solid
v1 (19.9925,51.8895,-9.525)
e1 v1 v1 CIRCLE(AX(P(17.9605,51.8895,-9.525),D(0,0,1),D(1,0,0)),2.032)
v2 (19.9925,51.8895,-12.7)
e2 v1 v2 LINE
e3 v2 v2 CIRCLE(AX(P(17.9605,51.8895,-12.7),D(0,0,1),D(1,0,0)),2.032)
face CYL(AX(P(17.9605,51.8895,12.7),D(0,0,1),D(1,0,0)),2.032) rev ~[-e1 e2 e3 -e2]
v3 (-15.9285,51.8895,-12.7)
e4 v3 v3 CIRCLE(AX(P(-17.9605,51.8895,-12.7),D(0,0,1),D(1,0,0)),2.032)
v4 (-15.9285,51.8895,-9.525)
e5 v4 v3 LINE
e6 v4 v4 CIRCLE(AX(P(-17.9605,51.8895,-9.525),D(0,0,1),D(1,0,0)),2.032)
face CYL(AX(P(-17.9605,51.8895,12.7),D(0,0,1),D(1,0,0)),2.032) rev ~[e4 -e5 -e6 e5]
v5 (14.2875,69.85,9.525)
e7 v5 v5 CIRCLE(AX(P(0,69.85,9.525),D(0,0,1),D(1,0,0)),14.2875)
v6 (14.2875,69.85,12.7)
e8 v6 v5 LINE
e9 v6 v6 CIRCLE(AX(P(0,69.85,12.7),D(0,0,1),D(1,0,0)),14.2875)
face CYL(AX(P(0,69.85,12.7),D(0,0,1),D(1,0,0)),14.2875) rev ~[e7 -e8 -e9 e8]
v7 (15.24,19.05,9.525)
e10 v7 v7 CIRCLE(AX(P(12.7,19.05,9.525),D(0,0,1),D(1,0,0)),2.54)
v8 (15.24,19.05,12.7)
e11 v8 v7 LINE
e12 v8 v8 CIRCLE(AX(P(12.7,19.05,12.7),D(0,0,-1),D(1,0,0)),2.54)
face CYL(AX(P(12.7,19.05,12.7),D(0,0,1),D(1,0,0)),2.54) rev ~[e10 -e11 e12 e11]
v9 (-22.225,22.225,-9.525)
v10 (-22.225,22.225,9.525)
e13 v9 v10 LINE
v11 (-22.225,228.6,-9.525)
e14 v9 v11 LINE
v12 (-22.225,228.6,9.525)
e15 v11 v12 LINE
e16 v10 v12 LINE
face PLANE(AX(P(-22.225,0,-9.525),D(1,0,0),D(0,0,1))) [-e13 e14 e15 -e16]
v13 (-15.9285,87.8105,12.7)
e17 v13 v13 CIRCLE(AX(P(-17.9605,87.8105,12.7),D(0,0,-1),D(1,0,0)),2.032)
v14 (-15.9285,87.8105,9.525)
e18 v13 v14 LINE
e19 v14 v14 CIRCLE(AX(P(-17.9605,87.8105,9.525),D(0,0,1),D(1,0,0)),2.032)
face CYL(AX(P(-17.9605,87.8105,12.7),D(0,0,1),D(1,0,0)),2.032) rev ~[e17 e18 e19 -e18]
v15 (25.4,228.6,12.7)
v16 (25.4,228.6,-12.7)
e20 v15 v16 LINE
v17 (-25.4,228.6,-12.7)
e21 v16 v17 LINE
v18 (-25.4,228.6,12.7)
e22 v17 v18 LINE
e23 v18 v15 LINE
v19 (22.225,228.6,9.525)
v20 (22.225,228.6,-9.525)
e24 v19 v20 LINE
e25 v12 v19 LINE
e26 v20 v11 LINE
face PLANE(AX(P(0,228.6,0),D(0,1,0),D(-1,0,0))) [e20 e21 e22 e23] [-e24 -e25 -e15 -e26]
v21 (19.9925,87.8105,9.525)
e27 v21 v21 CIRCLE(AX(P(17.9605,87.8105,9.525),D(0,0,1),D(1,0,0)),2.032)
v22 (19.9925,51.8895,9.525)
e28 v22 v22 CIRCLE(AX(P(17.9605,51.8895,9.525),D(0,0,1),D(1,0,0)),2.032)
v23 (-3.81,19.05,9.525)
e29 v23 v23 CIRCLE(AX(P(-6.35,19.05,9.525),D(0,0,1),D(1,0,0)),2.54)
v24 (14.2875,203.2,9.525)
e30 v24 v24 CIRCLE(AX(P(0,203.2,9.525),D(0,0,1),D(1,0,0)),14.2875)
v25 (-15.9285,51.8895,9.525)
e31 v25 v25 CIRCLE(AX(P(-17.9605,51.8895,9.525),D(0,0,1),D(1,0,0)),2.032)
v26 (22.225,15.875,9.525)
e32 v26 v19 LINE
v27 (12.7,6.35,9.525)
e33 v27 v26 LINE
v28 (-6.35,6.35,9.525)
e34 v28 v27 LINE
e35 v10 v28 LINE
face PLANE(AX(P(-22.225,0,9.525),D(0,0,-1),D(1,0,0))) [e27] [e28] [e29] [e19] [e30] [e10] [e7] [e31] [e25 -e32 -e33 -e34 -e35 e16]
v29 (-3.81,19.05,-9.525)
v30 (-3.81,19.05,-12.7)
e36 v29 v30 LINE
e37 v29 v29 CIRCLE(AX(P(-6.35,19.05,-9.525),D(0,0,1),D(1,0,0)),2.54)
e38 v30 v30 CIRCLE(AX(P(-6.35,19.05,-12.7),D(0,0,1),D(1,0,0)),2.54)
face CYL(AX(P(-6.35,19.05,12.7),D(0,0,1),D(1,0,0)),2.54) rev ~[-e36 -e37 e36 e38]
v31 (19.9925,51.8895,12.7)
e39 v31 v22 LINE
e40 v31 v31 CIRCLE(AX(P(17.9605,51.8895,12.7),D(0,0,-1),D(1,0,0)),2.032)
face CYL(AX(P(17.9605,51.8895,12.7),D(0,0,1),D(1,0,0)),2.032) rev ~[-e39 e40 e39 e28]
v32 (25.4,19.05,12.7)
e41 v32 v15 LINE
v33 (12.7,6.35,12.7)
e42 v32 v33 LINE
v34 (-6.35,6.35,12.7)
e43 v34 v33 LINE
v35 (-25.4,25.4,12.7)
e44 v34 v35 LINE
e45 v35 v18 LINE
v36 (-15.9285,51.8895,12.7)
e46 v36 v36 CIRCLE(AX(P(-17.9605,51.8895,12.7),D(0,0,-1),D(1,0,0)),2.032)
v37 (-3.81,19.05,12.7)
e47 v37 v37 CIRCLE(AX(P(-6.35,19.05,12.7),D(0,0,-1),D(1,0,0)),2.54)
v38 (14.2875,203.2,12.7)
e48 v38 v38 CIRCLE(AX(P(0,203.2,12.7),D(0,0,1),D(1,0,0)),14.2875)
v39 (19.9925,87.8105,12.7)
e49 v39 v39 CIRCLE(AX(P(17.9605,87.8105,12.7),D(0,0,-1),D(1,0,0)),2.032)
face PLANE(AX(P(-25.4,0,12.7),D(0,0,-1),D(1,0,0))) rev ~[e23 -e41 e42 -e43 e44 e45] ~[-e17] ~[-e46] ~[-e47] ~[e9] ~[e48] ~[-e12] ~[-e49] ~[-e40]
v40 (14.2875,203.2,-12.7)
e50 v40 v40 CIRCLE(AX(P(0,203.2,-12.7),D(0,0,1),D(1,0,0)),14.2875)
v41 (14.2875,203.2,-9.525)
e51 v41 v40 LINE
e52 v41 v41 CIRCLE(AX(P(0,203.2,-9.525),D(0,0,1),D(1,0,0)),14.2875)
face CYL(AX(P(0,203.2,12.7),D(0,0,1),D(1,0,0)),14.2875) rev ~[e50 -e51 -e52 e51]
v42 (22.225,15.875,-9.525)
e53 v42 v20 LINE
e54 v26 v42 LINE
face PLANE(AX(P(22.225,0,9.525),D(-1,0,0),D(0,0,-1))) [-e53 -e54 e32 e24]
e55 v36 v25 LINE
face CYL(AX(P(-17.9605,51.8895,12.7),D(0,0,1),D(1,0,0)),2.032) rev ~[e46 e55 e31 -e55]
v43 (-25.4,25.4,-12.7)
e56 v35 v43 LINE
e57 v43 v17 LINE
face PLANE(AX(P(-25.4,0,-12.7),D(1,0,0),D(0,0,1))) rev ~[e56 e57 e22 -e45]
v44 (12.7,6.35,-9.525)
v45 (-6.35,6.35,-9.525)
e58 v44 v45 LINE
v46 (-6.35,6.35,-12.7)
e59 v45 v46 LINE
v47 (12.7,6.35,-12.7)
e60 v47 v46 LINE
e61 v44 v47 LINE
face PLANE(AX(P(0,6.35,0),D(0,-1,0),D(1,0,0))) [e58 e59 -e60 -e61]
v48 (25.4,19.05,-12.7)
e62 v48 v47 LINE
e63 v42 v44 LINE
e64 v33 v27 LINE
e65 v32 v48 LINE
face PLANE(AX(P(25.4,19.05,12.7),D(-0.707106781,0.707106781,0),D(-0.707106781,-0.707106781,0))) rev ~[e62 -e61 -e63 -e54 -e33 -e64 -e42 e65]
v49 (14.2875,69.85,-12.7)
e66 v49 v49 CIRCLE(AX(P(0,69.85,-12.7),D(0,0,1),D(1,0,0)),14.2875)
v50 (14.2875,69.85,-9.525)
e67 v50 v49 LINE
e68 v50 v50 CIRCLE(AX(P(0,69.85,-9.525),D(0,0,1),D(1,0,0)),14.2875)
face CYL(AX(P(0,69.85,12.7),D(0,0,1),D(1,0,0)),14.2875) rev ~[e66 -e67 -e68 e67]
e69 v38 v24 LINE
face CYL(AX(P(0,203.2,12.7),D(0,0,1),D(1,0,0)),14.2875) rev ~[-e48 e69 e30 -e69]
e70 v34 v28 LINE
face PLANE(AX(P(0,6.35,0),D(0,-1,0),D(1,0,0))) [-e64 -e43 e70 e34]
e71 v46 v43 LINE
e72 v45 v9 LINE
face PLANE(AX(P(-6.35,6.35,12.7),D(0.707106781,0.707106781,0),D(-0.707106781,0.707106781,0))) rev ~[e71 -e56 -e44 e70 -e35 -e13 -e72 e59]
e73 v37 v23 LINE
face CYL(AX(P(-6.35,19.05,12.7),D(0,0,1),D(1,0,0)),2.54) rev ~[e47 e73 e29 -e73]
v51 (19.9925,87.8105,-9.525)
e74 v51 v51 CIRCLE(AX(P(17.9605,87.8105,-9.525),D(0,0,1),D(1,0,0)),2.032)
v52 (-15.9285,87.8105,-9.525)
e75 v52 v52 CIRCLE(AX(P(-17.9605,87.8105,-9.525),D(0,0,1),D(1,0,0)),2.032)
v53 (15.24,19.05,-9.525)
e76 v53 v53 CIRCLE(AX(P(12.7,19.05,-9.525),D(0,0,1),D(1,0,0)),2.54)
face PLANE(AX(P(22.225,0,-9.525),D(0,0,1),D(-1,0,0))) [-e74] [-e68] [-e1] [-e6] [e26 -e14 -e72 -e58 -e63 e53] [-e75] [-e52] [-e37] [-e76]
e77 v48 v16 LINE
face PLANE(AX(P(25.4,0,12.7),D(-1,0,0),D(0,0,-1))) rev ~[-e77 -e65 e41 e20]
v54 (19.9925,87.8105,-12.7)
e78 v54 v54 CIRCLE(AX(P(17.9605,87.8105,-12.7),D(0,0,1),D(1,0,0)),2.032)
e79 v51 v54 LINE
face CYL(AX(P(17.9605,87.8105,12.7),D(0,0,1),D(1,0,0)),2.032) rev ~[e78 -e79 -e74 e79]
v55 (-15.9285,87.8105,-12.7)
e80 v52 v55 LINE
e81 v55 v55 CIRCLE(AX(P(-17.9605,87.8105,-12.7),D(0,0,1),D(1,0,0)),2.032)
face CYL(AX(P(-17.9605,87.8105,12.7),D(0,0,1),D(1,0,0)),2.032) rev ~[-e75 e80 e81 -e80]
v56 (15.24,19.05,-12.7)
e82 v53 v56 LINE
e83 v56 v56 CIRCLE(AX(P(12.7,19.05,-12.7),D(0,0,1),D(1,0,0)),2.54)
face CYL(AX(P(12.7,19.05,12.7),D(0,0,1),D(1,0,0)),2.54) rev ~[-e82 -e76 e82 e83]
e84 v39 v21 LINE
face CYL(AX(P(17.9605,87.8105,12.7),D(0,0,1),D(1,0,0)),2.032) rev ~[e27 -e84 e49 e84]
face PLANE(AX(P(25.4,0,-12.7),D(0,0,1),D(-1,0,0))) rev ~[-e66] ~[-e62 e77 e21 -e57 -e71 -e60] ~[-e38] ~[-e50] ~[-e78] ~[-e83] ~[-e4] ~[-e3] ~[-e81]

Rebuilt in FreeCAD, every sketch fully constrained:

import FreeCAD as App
import Part
import Sketcher
from FreeCAD import Vector
Q = App.Units.Quantity

doc = App.newDocument("Part")
params = doc.addObject("Spreadsheet::Sheet", "Params")
for row, (alias, value) in enumerate([
    ("sketch1_width", "2 in"),
    ("sketch1_height", "1 in"),
    ("sketch1_width2", "1.75 in"),
    ("sketch1_height2", "0.75 in"),
    ("pad1_length", "9 in"),
    ("sketch2_diameter", "0.2 in"),
    ("sketch2_diameter2", "0.5 in"),
    ("pocket1_length", "9 in"),
    ("sketch3_width", "2 in"),
    ("sketch3_height", "1 in"),
    ("sketch3_width2", "1.75 in"),
    ("sketch3_height2", "0.75 in"),
    ("pocket2_length", "0.25 in"),
    ("sketch4_width", "0.5 in"),
    ("pocket3_length", "25 in"),
    ("sketch5_width", "0.25 in"),
    ("pocket4_length", "25 in"),
    ("sketch6_diameter", "0.75 in"),
    ("sketch6_diameter2", "0.16 in"),
    ("pocket5_length", "25 in"),
    ("sketch7_diameter", "1.125 in"),
    ("sketch7_diameter2", "0.5 in"),
    ("pocket6_length", "25 in"),
    ("sketch8_diameter", "1.125 in"),
    ("sketch8_diameter2", "0.75 in"),
    ("pocket7_length", "1 in"),
], start=1):
    params.set(f"A{row}", alias)
    params.set(f"B{row}", "=" + value)
    params.setAlias(f"B{row}", alias)

body = doc.addObject("PartDesign::Body", "Body")

# Sketch on XZ plane
sketch1 = body.newObject("Sketcher::SketchObject", "Sketch")
sketch1.AttachmentSupport = (doc.getObject("XZ_Plane"), [""])
sketch1.MapMode = "FlatFace"
sketch1.addGeometry(Part.LineSegment(Vector(-25, -13, 0), Vector(-25, 13, 0)), False)
sketch1.addGeometry(Part.LineSegment(Vector(-25, 13, 0), Vector(25, 13, 0)), False)
sketch1.addGeometry(Part.LineSegment(Vector(25, 13, 0), Vector(25, -13, 0)), False)
sketch1.addGeometry(Part.LineSegment(Vector(25, -13, 0), Vector(-25, -13, 0)), False)
sketch1.addGeometry(Part.LineSegment(Vector(22, 10, 0), Vector(-22, 10, 0)), False)
sketch1.addGeometry(Part.LineSegment(Vector(-22, 10, 0), Vector(-22, -10, 0)), False)
sketch1.addGeometry(Part.LineSegment(Vector(-22, -10, 0), Vector(22, -10, 0)), False)
sketch1.addGeometry(Part.LineSegment(Vector(22, -10, 0), Vector(22, 10, 0)), False)
sketch1.addConstraint(Sketcher.Constraint("Coincident", 0, 2, 1, 1))
sketch1.addConstraint(Sketcher.Constraint("Coincident", 1, 2, 2, 1))
sketch1.addConstraint(Sketcher.Constraint("Coincident", 2, 2, 3, 1))
sketch1.addConstraint(Sketcher.Constraint("Coincident", 3, 2, 0, 1))
sketch1.addConstraint(Sketcher.Constraint("Coincident", 4, 2, 5, 1))
sketch1.addConstraint(Sketcher.Constraint("Coincident", 5, 2, 6, 1))
sketch1.addConstraint(Sketcher.Constraint("Coincident", 6, 2, 7, 1))
sketch1.addConstraint(Sketcher.Constraint("Coincident", 7, 2, 4, 1))
sketch1.addConstraint(Sketcher.Constraint("Vertical", 0))
sketch1.addConstraint(Sketcher.Constraint("Horizontal", 1))
sketch1.addConstraint(Sketcher.Constraint("Vertical", 2))
sketch1.addConstraint(Sketcher.Constraint("Horizontal", 3))
sketch1.addConstraint(Sketcher.Constraint("Horizontal", 4))
sketch1.addConstraint(Sketcher.Constraint("Vertical", 5))
sketch1.addConstraint(Sketcher.Constraint("Horizontal", 6))
sketch1.addConstraint(Sketcher.Constraint("Vertical", 7))
sketch1.addConstraint(Sketcher.Constraint("Symmetric", 0, 2, 2, 2, -1, 1))
sketch1.addConstraint(Sketcher.Constraint("Symmetric", 4, 2, 6, 2, -1, 1))
sketch1.addConstraint(Sketcher.Constraint("DistanceX", 1, 1, 1, 2, Q("2 in")))
sketch1.addConstraint(Sketcher.Constraint("DistanceY", 0, 1, 0, 2, Q("1 in")))
sketch1.addConstraint(Sketcher.Constraint("DistanceX", 4, 2, 4, 1, Q("1.75 in")))
sketch1.addConstraint(Sketcher.Constraint("DistanceY", 5, 2, 5, 1, Q("0.75 in")))
sketch1.setExpression("Constraints[18]", "Params.sketch1_width")
sketch1.setExpression("Constraints[19]", "Params.sketch1_height")
sketch1.setExpression("Constraints[20]", "Params.sketch1_width2")
sketch1.setExpression("Constraints[21]", "Params.sketch1_height2")
pad1 = body.newObject("PartDesign::Pad", "Pad")
pad1.Profile = sketch1
pad1.setExpression("Length", "Params.pad1_length")
pad1.Reversed = True

# Sketch on XY plane
sketch2 = body.newObject("Sketcher::SketchObject", "Sketch001")
sketch2.AttachmentSupport = (doc.getObject("XY_Plane"), [""])
sketch2.MapMode = "FlatFace"
sketch2.AttachmentOffset = App.Placement(Vector(0, 0, 0.5 * 25.4), App.Rotation())
sketch2.addGeometry(Part.Circle(Vector(12.7, 19.1, 0), Vector(0, 0, 1), 2.5), False)
sketch2.addGeometry(Part.Circle(Vector(0, 203.2, 0), Vector(0, 0, 1), 6.3), False)
sketch2.addGeometry(Part.Circle(Vector(-6.3, 19.1, 0), Vector(0, 0, 1), 2.5), False)
sketch2.addConstraint(Sketcher.Constraint("Equal", 0, 2))
sketch2.addConstraint(Sketcher.Constraint("PointOnObject", 1, 3, -2))
sketch2.addConstraint(Sketcher.Constraint("Horizontal", 0, 3, 2, 3))
sketch2.addConstraint(Sketcher.Constraint("Diameter", 0, Q("0.2 in")))
sketch2.addConstraint(Sketcher.Constraint("Diameter", 1, Q("0.5 in")))
sketch2.addConstraint(Sketcher.Constraint("DistanceX", -1, 1, 0, 3, Q("0.5 in")))
sketch2.addConstraint(Sketcher.Constraint("DistanceY", -1, 1, 0, 3, Q("0.75 in")))
sketch2.addConstraint(Sketcher.Constraint("DistanceX", 2, 3, -1, 1, Q("0.25 in")))
sketch2.addConstraint(Sketcher.Constraint("DistanceY", -1, 1, 1, 3, Q("8 in")))
sketch2.setExpression("Constraints[3]", "Params.sketch2_diameter")
sketch2.setExpression("Constraints[4]", "Params.sketch2_diameter2")
pocket1 = body.newObject("PartDesign::Pocket", "Pocket")
pocket1.Profile = sketch2
pocket1.setExpression("Length", "Params.pocket1_length")

# Sketch on XZ plane
sketch3 = body.newObject("Sketcher::SketchObject", "Sketch002")
sketch3.AttachmentSupport = (doc.getObject("XZ_Plane"), [""])
sketch3.MapMode = "FlatFace"
sketch3.addGeometry(Part.LineSegment(Vector(25, 13, 0), Vector(-25, 13, 0)), False)
sketch3.addGeometry(Part.LineSegment(Vector(-25, 13, 0), Vector(-25, -13, 0)), False)
sketch3.addGeometry(Part.LineSegment(Vector(-25, -13, 0), Vector(25, -13, 0)), False)
sketch3.addGeometry(Part.LineSegment(Vector(25, -13, 0), Vector(25, 13, 0)), False)
sketch3.addGeometry(Part.LineSegment(Vector(22, -10, 0), Vector(-22, -10, 0)), False)
sketch3.addGeometry(Part.LineSegment(Vector(-22, -10, 0), Vector(-22, 10, 0)), False)
sketch3.addGeometry(Part.LineSegment(Vector(-22, 10, 0), Vector(22, 10, 0)), False)
sketch3.addGeometry(Part.LineSegment(Vector(22, 10, 0), Vector(22, -10, 0)), False)
sketch3.addConstraint(Sketcher.Constraint("Coincident", 0, 2, 1, 1))
sketch3.addConstraint(Sketcher.Constraint("Coincident", 1, 2, 2, 1))
sketch3.addConstraint(Sketcher.Constraint("Coincident", 2, 2, 3, 1))
sketch3.addConstraint(Sketcher.Constraint("Coincident", 3, 2, 0, 1))
sketch3.addConstraint(Sketcher.Constraint("Coincident", 4, 2, 5, 1))
sketch3.addConstraint(Sketcher.Constraint("Coincident", 5, 2, 6, 1))
sketch3.addConstraint(Sketcher.Constraint("Coincident", 6, 2, 7, 1))
sketch3.addConstraint(Sketcher.Constraint("Coincident", 7, 2, 4, 1))
sketch3.addConstraint(Sketcher.Constraint("Horizontal", 0))
sketch3.addConstraint(Sketcher.Constraint("Vertical", 1))
sketch3.addConstraint(Sketcher.Constraint("Horizontal", 2))
sketch3.addConstraint(Sketcher.Constraint("Vertical", 3))
sketch3.addConstraint(Sketcher.Constraint("Horizontal", 4))
sketch3.addConstraint(Sketcher.Constraint("Vertical", 5))
sketch3.addConstraint(Sketcher.Constraint("Horizontal", 6))
sketch3.addConstraint(Sketcher.Constraint("Vertical", 7))
sketch3.addConstraint(Sketcher.Constraint("Symmetric", 0, 2, 2, 2, -1, 1))
sketch3.addConstraint(Sketcher.Constraint("Symmetric", 4, 2, 6, 2, -1, 1))
sketch3.addConstraint(Sketcher.Constraint("DistanceX", 0, 2, 0, 1, Q("2 in")))
sketch3.addConstraint(Sketcher.Constraint("DistanceY", 1, 2, 1, 1, Q("1 in")))
sketch3.addConstraint(Sketcher.Constraint("DistanceX", 4, 2, 4, 1, Q("1.75 in")))
sketch3.addConstraint(Sketcher.Constraint("DistanceY", 5, 1, 5, 2, Q("0.75 in")))
sketch3.setExpression("Constraints[18]", "Params.sketch3_width")
sketch3.setExpression("Constraints[19]", "Params.sketch3_height")
sketch3.setExpression("Constraints[20]", "Params.sketch3_width2")
sketch3.setExpression("Constraints[21]", "Params.sketch3_height2")
pocket2 = body.newObject("PartDesign::Pocket", "Pocket001")
pocket2.Profile = sketch3
pocket2.setExpression("Length", "Params.pocket2_length")

# Sketch on XY plane
sketch4 = body.newObject("Sketcher::SketchObject", "Sketch003")
sketch4.AttachmentSupport = (doc.getObject("XY_Plane"), [""])
sketch4.MapMode = "FlatFace"
sketch4.AttachmentOffset = App.Placement(Vector(0, 0, 0.5 * 25.4), App.Rotation())
sketch4.addGeometry(Part.LineSegment(Vector(-25, 19, 0), Vector(-25, 6, 0)), False)
sketch4.addGeometry(Part.LineSegment(Vector(-25, 6, 0), Vector(-13, 6, 0)), False)
sketch4.addGeometry(Part.LineSegment(Vector(-13, 6, 0), Vector(-25, 19, 0)), False)
sketch4.addGeometry(Part.LineSegment(Vector(25, 19, 0), Vector(13, 6, 0)), False)
sketch4.addGeometry(Part.LineSegment(Vector(13, 6, 0), Vector(25, 6, 0)), False)
sketch4.addGeometry(Part.LineSegment(Vector(25, 6, 0), Vector(25, 19, 0)), False)
sketch4.addConstraint(Sketcher.Constraint("Coincident", 0, 2, 1, 1))
sketch4.addConstraint(Sketcher.Constraint("Coincident", 1, 2, 2, 1))
sketch4.addConstraint(Sketcher.Constraint("Coincident", 2, 2, 0, 1))
sketch4.addConstraint(Sketcher.Constraint("Coincident", 3, 2, 4, 1))
sketch4.addConstraint(Sketcher.Constraint("Coincident", 4, 2, 5, 1))
sketch4.addConstraint(Sketcher.Constraint("Coincident", 5, 2, 3, 1))
sketch4.addConstraint(Sketcher.Constraint("Vertical", 0))
sketch4.addConstraint(Sketcher.Constraint("Horizontal", 1))
sketch4.addConstraint(Sketcher.Constraint("Horizontal", 4))
sketch4.addConstraint(Sketcher.Constraint("Vertical", 5))
sketch4.addConstraint(Sketcher.Constraint("Symmetric", 1, 2, 3, 2, -2))
sketch4.addConstraint(Sketcher.Constraint("Symmetric", 2, 2, 5, 2, -2))
sketch4.addConstraint(Sketcher.Constraint("Perpendicular", 2, 3))
sketch4.addConstraint(Sketcher.Constraint("DistanceX", 1, 1, 1, 2, Q("0.5 in")))
sketch4.addConstraint(Sketcher.Constraint("DistanceX", 0, 2, -1, 1, Q("1 in")))
sketch4.addConstraint(Sketcher.Constraint("DistanceY", -1, 1, 0, 2, Q("0.25 in")))
sketch4.setExpression("Constraints[13]", "Params.sketch4_width")
pocket3 = body.newObject("PartDesign::Pocket", "Pocket002")
pocket3.Profile = sketch4
pocket3.setExpression("Length", "Params.pocket3_length")

# Sketch on XY plane
sketch5 = body.newObject("Sketcher::SketchObject", "Sketch004")
sketch5.AttachmentSupport = (doc.getObject("XY_Plane"), [""])
sketch5.MapMode = "FlatFace"
sketch5.AttachmentOffset = App.Placement(Vector(0, 0, 0.5 * 25.4), App.Rotation())
sketch5.addGeometry(Part.LineSegment(Vector(-25, 25, 0), Vector(-25, 19, 0)), False)
sketch5.addGeometry(Part.LineSegment(Vector(-25, 19, 0), Vector(-13, 6, 0)), False)
sketch5.addGeometry(Part.LineSegment(Vector(-13, 6, 0), Vector(-6, 6, 0)), False)
sketch5.addGeometry(Part.LineSegment(Vector(-6, 6, 0), Vector(-25, 25, 0)), False)
sketch5.addConstraint(Sketcher.Constraint("Coincident", 0, 2, 1, 1))
sketch5.addConstraint(Sketcher.Constraint("Coincident", 1, 2, 2, 1))
sketch5.addConstraint(Sketcher.Constraint("Coincident", 2, 2, 3, 1))
sketch5.addConstraint(Sketcher.Constraint("Coincident", 3, 2, 0, 1))
sketch5.addConstraint(Sketcher.Constraint("Vertical", 0))
sketch5.addConstraint(Sketcher.Constraint("Horizontal", 2))
sketch5.addConstraint(Sketcher.Constraint("Parallel", 1, 3))
sketch5.addConstraint(Sketcher.Constraint("Equal", 2, 0))
sketch5.addConstraint(Sketcher.Constraint("DistanceX", 0, 2, -1, 1, Q("1 in")))
sketch5.addConstraint(Sketcher.Constraint("DistanceY", -1, 1, 3, 2, Q("1 in")))
sketch5.addConstraint(Sketcher.Constraint("DistanceX", 2, 1, 2, 2, Q("0.25 in")))
sketch5.addConstraint(Sketcher.Constraint("DistanceX", 1, 2, -1, 1, Q("0.5 in")))
sketch5.setExpression("Constraints[10]", "Params.sketch5_width")
pocket4 = body.newObject("PartDesign::Pocket", "Pocket003")
pocket4.Profile = sketch5
pocket4.setExpression("Length", "Params.pocket4_length")

# Sketch on XY plane
sketch6 = body.newObject("Sketcher::SketchObject", "Sketch005")
sketch6.AttachmentSupport = (doc.getObject("XY_Plane"), [""])
sketch6.MapMode = "FlatFace"
sketch6.AttachmentOffset = App.Placement(Vector(0, 0, 0.5 * 25.4), App.Rotation())
sketch6.addGeometry(Part.Circle(Vector(0, 69.8, 0), Vector(0, 0, 1), 9.5), False)
sketch6.addGeometry(Part.Circle(Vector(-18, 51.9, 0), Vector(0, 0, 1), 2), False)
sketch6.addGeometry(Part.Circle(Vector(18, 51.9, 0), Vector(0, 0, 1), 2), False)
sketch6.addGeometry(Part.Circle(Vector(-18, 87.8, 0), Vector(0, 0, 1), 2), False)
sketch6.addGeometry(Part.Circle(Vector(18, 87.8, 0), Vector(0, 0, 1), 2), False)
sketch6.addConstraint(Sketcher.Constraint("Equal", 1, 2))
sketch6.addConstraint(Sketcher.Constraint("Equal", 2, 3))
sketch6.addConstraint(Sketcher.Constraint("Equal", 3, 4))
sketch6.addConstraint(Sketcher.Constraint("Symmetric", 1, 3, 2, 3, -2))
sketch6.addConstraint(Sketcher.Constraint("Symmetric", 3, 3, 4, 3, -2))
sketch6.addConstraint(Sketcher.Constraint("PointOnObject", 0, 3, -2))
sketch6.addConstraint(Sketcher.Constraint("Vertical", 1, 3, 3, 3))
sketch6.addConstraint(Sketcher.Constraint("Diameter", 0, Q("0.75 in")))
sketch6.addConstraint(Sketcher.Constraint("Diameter", 1, Q("0.16 in")))
sketch6.addConstraint(Sketcher.Constraint("DistanceY", -1, 1, 0, 3, Q("2.75 in")))
sketch6.addConstraint(Sketcher.Constraint("DistanceX", 1, 3, -1, 1, Q("0.7071 in")))
sketch6.addConstraint(Sketcher.Constraint("DistanceY", -1, 1, 1, 3, Q("2.0429 in")))
sketch6.addConstraint(Sketcher.Constraint("DistanceY", -1, 1, 3, 3, Q("3.4571 in")))
sketch6.setExpression("Constraints[7]", "Params.sketch6_diameter")
sketch6.setExpression("Constraints[8]", "Params.sketch6_diameter2")
pocket5 = body.newObject("PartDesign::Pocket", "Pocket004")
pocket5.Profile = sketch6
pocket5.setExpression("Length", "Params.pocket5_length")

# Sketch on XY plane
sketch7 = body.newObject("Sketcher::SketchObject", "Sketch006")
sketch7.AttachmentSupport = (doc.getObject("XY_Plane"), [""])
sketch7.MapMode = "FlatFace"
sketch7.AttachmentOffset = App.Placement(Vector(0, 0, 0.5 * 25.4), App.Rotation())
sketch7.addGeometry(Part.Circle(Vector(0, 203, 0), Vector(0, 0, 1), 14), False)
sketch7.addGeometry(Part.Circle(Vector(0, 203, 0), Vector(0, 0, 1), 6), False)
sketch7.addConstraint(Sketcher.Constraint("Coincident", 1, 3, 0, 3))
sketch7.addConstraint(Sketcher.Constraint("PointOnObject", 0, 3, -2))
sketch7.addConstraint(Sketcher.Constraint("Diameter", 0, Q("1.125 in")))
sketch7.addConstraint(Sketcher.Constraint("Diameter", 1, Q("0.5 in")))
sketch7.addConstraint(Sketcher.Constraint("DistanceY", -1, 1, 0, 3, Q("8 in")))
sketch7.setExpression("Constraints[2]", "Params.sketch7_diameter")
sketch7.setExpression("Constraints[3]", "Params.sketch7_diameter2")
pocket6 = body.newObject("PartDesign::Pocket", "Pocket005")
pocket6.Profile = sketch7
pocket6.setExpression("Length", "Params.pocket6_length")

# Sketch on XY plane
sketch8 = body.newObject("Sketcher::SketchObject", "Sketch007")
sketch8.AttachmentSupport = (doc.getObject("XY_Plane"), [""])
sketch8.MapMode = "FlatFace"
sketch8.AttachmentOffset = App.Placement(Vector(0, 0, 0.5 * 25.4), App.Rotation())
sketch8.addGeometry(Part.Circle(Vector(0, 70, 0), Vector(0, 0, 1), 14), False)
sketch8.addGeometry(Part.Circle(Vector(0, 70, 0), Vector(0, 0, 1), 10), False)
sketch8.addConstraint(Sketcher.Constraint("Coincident", 1, 3, 0, 3))
sketch8.addConstraint(Sketcher.Constraint("PointOnObject", 0, 3, -2))
sketch8.addConstraint(Sketcher.Constraint("Diameter", 0, Q("1.125 in")))
sketch8.addConstraint(Sketcher.Constraint("Diameter", 1, Q("0.75 in")))
sketch8.addConstraint(Sketcher.Constraint("DistanceY", -1, 1, 0, 3, Q("2.75 in")))
sketch8.setExpression("Constraints[2]", "Params.sketch8_diameter")
sketch8.setExpression("Constraints[3]", "Params.sketch8_diameter2")
pocket7 = body.newObject("PartDesign::Pocket", "Pocket006")
pocket7.Profile = sketch8
pocket7.setExpression("Length", "Params.pocket7_length")

doc.recompute()
